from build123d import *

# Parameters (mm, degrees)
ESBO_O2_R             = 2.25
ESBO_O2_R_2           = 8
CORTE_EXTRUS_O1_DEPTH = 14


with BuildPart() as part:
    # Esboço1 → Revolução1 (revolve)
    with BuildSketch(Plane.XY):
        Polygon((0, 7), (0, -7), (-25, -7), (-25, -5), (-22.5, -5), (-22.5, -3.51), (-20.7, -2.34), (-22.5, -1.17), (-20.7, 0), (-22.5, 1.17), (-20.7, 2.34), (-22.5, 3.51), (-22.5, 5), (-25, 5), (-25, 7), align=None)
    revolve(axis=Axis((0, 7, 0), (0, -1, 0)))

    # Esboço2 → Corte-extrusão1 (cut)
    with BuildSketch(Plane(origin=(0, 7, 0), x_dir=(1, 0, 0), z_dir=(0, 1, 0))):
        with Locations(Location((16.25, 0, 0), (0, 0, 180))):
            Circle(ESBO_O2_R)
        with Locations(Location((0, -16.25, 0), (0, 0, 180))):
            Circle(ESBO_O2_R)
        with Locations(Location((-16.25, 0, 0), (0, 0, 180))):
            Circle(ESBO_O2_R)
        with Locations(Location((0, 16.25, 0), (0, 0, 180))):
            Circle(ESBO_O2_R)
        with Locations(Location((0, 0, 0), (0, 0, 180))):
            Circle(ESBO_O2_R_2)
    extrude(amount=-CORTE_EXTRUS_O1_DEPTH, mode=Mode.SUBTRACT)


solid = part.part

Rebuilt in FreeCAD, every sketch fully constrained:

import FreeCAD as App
import Part
import Sketcher
Q = App.Units.Quantity


def add_polygon(sketch, points):
    """Adds a closed chain of lines whose ends are joined by coincident constraints."""
    first, n = sketch.GeometryCount, len(points)
    for a, b in zip(points, points[1:] + points[:1]):
        sketch.addGeometry(Part.LineSegment(App.Vector(*a, 0), App.Vector(*b, 0)), False)
    for i in range(n):
        sketch.addConstraint(Sketcher.Constraint("Coincident", first + i, 2, first + (i + 1) % n, 1))

doc = App.newDocument("Part")
params = doc.addObject("Spreadsheet::Sheet", "Params")
for row, (alias, value) in enumerate([
    ("sketch1_width", "25 mm"),
    ("sketch1_height", "14 mm"),
    ("sketch1_height2", "2 mm"),
    ("sketch1_width2", "2.5 mm"),
    ("sketch1_height3", "1.49 mm"),
    ("revolution_angle", "360 deg"),
    ("sketch2_diameter", "16 mm"),
    ("sketch2_diameter2", "4.5 mm"),
    ("pocket1_length", "14 mm"),
], start=1):
    params.set(f"A{row}", alias)
    params.set(f"B{row}", "=" + value)
    params.setAlias(f"B{row}", alias)

body = doc.addObject("PartDesign::Body", "Body")

sketch1 = body.newObject("Sketcher::SketchObject", "Sketch")
sketch1.AttachmentSupport = (doc.getObject("XY_Plane"), [""])
sketch1.MapMode = "FlatFace"
add_polygon(sketch1, [(0, -7), (0, 7), (-25, 7), (-25, 5), (-22.5, 5), (-22.5, 3.5), (-20.7, 2.3), (-22.5, 1.2), (-20.7, 0), (-22.5, -1.2), (-20.7, -2.3), (-22.5, -3.5), (-22.5, -5), (-25, -5), (-25, -7)])
sketch1.addConstraint([
    Sketcher.Constraint("Vertical", 0),
    Sketcher.Constraint("Horizontal", 1),
    Sketcher.Constraint("Vertical", 2),
    Sketcher.Constraint("Horizontal", 3),
    Sketcher.Constraint("Vertical", 4),
    Sketcher.Constraint("Vertical", 11),
    Sketcher.Constraint("Horizontal", 12),
    Sketcher.Constraint("Vertical", 13),
    Sketcher.Constraint("Horizontal", 14),
    Sketcher.Constraint("Symmetric", 0, 2, 14, 2, -1, 1),
    Sketcher.Constraint("Symmetric", 6, 2, 8, 2, -1),
    Sketcher.Constraint("Symmetric", 5, 2, 9, 2, -1),
    Sketcher.Constraint("Symmetric", 4, 2, 10, 2, -1),
    Sketcher.Constraint("Symmetric", 2, 2, 12, 2, -1),
    Sketcher.Constraint("PointOnObject", 7, 2, -1),
    Sketcher.Constraint("Parallel", 5, 7),
    Sketcher.Constraint("Parallel", 6, 8),
    Sketcher.Constraint("Vertical", 4, 2, 6, 2),
    Sketcher.Constraint("Vertical", 5, 2, 7, 2),
    Sketcher.Constraint("DistanceX", 1, 2, 1, 1, Q("25 mm")),
    Sketcher.Constraint("DistanceY", 0, 1, 0, 2, Q("14 mm")),
    Sketcher.Constraint("DistanceY", 2, 2, 2, 1, Q("2 mm")),
    Sketcher.Constraint("DistanceX", 3, 1, 3, 2, Q("2.5 mm")),
    Sketcher.Constraint("DistanceY", 4, 2, 4, 1, Q("1.49 mm")),
    Sketcher.Constraint("DistanceX", 5, 2, -1, 1, Q("20.7 mm")),
])
sketch1.setExpression("Constraints[34]", "Params.sketch1_width")
sketch1.setExpression("Constraints[35]", "Params.sketch1_height")
sketch1.setExpression("Constraints[36]", "Params.sketch1_height2")
sketch1.setExpression("Constraints[37]", "Params.sketch1_width2")
sketch1.setExpression("Constraints[38]", "Params.sketch1_height3")
revolution = body.newObject("PartDesign::Revolution", "Revolution")
revolution.Profile = sketch1
revolution.ReferenceAxis = (sketch1, ["V_Axis"])
revolution.setExpression("Angle", "Params.revolution_angle")

sketch2 = body.newObject("Sketcher::SketchObject", "Sketch001")
sketch2.AttachmentSupport = (doc.getObject("XZ_Plane"), [""])
sketch2.MapMode = "FlatFace"
sketch2.AttachmentOffset = App.Placement(App.Vector(0, 0, -7), App.Rotation())
sketch2.addGeometry([
    Part.Circle(App.Vector(16.2, 0, 0), App.Vector(0, 0, 1), 2.2),
    Part.Circle(App.Vector(0, 16.2, 0), App.Vector(0, 0, 1), 2.2),
    Part.Circle(App.Vector(-16.2, 0, 0), App.Vector(0, 0, 1), 2.2),
    Part.Circle(App.Vector(0, -16.2, 0), App.Vector(0, 0, 1), 2.2),
    Part.Circle(App.Vector(0, 0, 0), App.Vector(0, 0, 1), 8),
], False)
sketch2.addConstraint([
    Sketcher.Constraint("Coincident", 4, 3, -1, 1),
    Sketcher.Constraint("Equal", 0, 1),
    Sketcher.Constraint("Equal", 1, 2),
    Sketcher.Constraint("Equal", 2, 3),
    Sketcher.Constraint("Symmetric", 0, 3, 2, 3, -1, 1),
    Sketcher.Constraint("Symmetric", 1, 3, 3, 3, -1, 1),
    Sketcher.Constraint("PointOnObject", 0, 3, -1),
    Sketcher.Constraint("PointOnObject", 1, 3, -2),
    Sketcher.Constraint("Diameter", 4, Q("16 mm")),
    Sketcher.Constraint("Diameter", 0, Q("4.5 mm")),
    Sketcher.Constraint("DistanceX", 2, 3, 0, 3, Q("32.5 mm")),
    Sketcher.Constraint("DistanceY", 3, 3, 1, 3, Q("32.5 mm")),
])
sketch2.setExpression("Constraints[8]", "Params.sketch2_diameter")
sketch2.setExpression("Constraints[9]", "Params.sketch2_diameter2")
pocket1 = body.newObject("PartDesign::Pocket", "Pocket")
pocket1.Profile = sketch2
pocket1.setExpression("Length", "Params.pocket1_length")
pocket1.Reversed = True

doc.recompute()
